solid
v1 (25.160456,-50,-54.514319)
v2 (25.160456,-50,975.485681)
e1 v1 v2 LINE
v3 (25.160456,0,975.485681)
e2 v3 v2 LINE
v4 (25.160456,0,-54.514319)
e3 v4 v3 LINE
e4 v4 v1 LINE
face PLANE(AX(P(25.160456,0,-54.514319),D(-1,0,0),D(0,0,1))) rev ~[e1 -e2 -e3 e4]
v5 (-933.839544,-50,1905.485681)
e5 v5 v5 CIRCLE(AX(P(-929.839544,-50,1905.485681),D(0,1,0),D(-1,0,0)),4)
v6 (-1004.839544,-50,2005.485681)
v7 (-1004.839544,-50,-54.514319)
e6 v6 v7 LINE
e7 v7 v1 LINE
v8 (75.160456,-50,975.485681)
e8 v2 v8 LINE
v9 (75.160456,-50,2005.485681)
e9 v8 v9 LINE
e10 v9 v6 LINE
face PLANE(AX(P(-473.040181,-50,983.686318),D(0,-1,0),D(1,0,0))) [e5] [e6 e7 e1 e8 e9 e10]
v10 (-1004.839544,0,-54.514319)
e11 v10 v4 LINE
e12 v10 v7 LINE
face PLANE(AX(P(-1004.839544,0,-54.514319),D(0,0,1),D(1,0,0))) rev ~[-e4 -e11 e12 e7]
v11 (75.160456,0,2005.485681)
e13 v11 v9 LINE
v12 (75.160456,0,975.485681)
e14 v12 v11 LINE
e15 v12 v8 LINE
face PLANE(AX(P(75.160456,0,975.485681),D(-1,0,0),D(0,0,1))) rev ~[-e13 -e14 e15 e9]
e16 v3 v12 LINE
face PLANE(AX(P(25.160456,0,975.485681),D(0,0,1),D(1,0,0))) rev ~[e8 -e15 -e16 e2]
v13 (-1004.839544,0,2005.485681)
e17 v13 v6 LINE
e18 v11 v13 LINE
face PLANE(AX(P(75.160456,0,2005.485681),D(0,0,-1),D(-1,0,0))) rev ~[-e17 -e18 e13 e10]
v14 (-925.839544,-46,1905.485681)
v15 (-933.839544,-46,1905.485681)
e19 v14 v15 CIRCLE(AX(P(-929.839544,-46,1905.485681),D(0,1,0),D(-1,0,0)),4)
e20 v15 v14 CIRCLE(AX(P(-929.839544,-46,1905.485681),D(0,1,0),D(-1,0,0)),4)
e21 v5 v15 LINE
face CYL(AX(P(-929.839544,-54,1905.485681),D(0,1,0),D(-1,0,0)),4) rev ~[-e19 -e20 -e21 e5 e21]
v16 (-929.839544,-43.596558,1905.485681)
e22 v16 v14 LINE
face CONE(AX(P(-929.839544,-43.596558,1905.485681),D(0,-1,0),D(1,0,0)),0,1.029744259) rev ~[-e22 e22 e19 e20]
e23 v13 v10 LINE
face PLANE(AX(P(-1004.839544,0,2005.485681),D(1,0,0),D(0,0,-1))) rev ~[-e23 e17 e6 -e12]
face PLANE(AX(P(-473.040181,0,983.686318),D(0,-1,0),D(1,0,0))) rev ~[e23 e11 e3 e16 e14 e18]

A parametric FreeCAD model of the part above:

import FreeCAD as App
import Part
import Sketcher

doc = App.newDocument("Part")
params = doc.addObject("Spreadsheet::Sheet", "Params")
for row, (alias, value) in enumerate([
    ("sketch1_width", "1080 mm"),
    ("sketch1_width2", "1030 mm"),
    ("pad1_length", "50 mm"),
    ("sketch2_diameter", "8 mm"),
    ("hole_diameter", "8 mm"),
    ("hole_depth", "4 mm"),
], start=1):
    params.set(f"A{row}", alias)
    params.set(f"B{row}", "=" + value)
    params.setAlias(f"B{row}", alias)

body = doc.addObject("PartDesign::Body", "Body")

sketch1 = doc.addObject("Sketcher::SketchObject", "Sketch")
body.addObject(sketch1)
sketch1.AttachmentSupport = (doc.XZ_Plane, [""])
sketch1.MapMode = "FlatFace"
sketch1.addGeometry([
    Part.LineSegment(App.Vector(75, 2005, 0), App.Vector(-1005, 2005, 0)),
    Part.LineSegment(App.Vector(-1005, 2005, 0), App.Vector(-1005, -55, 0)),
    Part.LineSegment(App.Vector(-1005, -55, 0), App.Vector(25, -55, 0)),
    Part.LineSegment(App.Vector(25, -55, 0), App.Vector(25, 975, 0)),
    Part.LineSegment(App.Vector(25, 975, 0), App.Vector(75, 975, 0)),
    Part.LineSegment(App.Vector(75, 975, 0), App.Vector(75, 2005, 0)),
], False)
sketch1.addConstraint([
    Sketcher.Constraint("Coincident", 0, 2, 1, 1),
    Sketcher.Constraint("Coincident", 1, 2, 2, 1),
    Sketcher.Constraint("Coincident", 2, 2, 3, 1),
    Sketcher.Constraint("Coincident", 3, 2, 4, 1),
    Sketcher.Constraint("Coincident", 4, 2, 5, 1),
    Sketcher.Constraint("Coincident", 5, 2, 0, 1),
    Sketcher.Constraint("Horizontal", 0),
    Sketcher.Constraint("Vertical", 1),
    Sketcher.Constraint("Horizontal", 2),
    Sketcher.Constraint("Vertical", 3),
    Sketcher.Constraint("Horizontal", 4),
    Sketcher.Constraint("Vertical", 5),
    Sketcher.Constraint("Equal", 2, 3),
    Sketcher.Constraint("Equal", 3, 5),
    Sketcher.Constraint("DistanceX", 0, 2, 0, 1, 1080.0),
    Sketcher.Constraint("DistanceX", 2, 1, 2, 2, 1030.0),
    Sketcher.Constraint("DistanceY", -1, 1, 0, 2, 2005.485681),
    Sketcher.Constraint("DistanceX", 0, 2, -1, 1, 1004.839544),
])
sketch1.setExpression("Constraints[14]", "Params.sketch1_width")
sketch1.setExpression("Constraints[15]", "Params.sketch1_width2")
pad1 = doc.addObject("PartDesign::Pad", "Pad")
body.addObject(pad1)
pad1.Profile = sketch1
pad1.setExpression("Length", "Params.pad1_length")

sketch2 = doc.addObject("Sketcher::SketchObject", "Sketch001")
body.addObject(sketch2)
sketch2.AttachmentSupport = (doc.XZ_Plane, [""])
sketch2.MapMode = "FlatFace"
sketch2.AttachmentOffset = App.Placement(App.Vector(0, 0, 50), App.Rotation())
sketch2.addGeometry(Part.Circle(App.Vector(-929.8, 1905.5, 0), App.Vector(0, 0, 1), 4), False)
sketch2.addConstraint([
    Sketcher.Constraint("Diameter", 0, 8.0),
    Sketcher.Constraint("DistanceY", -1, 1, 0, 3, 1905.485681),
    Sketcher.Constraint("DistanceX", 0, 3, -1, 1, 929.839544),
])
sketch2.setExpression("Constraints[0]", "Params.sketch2_diameter")
doc.recompute()
hole = doc.addObject("PartDesign::Hole", "Hole")
body.addObject(hole)
hole.Profile = sketch2
hole.ThreadType = "None"
hole.setExpression("Diameter", "Params.hole_diameter")
hole.DepthType = "Dimension"
hole.setExpression("Depth", "Params.hole_depth")
hole.DrillPoint = "Angled"
hole.DrillPointAngle = 118

doc.recompute()
